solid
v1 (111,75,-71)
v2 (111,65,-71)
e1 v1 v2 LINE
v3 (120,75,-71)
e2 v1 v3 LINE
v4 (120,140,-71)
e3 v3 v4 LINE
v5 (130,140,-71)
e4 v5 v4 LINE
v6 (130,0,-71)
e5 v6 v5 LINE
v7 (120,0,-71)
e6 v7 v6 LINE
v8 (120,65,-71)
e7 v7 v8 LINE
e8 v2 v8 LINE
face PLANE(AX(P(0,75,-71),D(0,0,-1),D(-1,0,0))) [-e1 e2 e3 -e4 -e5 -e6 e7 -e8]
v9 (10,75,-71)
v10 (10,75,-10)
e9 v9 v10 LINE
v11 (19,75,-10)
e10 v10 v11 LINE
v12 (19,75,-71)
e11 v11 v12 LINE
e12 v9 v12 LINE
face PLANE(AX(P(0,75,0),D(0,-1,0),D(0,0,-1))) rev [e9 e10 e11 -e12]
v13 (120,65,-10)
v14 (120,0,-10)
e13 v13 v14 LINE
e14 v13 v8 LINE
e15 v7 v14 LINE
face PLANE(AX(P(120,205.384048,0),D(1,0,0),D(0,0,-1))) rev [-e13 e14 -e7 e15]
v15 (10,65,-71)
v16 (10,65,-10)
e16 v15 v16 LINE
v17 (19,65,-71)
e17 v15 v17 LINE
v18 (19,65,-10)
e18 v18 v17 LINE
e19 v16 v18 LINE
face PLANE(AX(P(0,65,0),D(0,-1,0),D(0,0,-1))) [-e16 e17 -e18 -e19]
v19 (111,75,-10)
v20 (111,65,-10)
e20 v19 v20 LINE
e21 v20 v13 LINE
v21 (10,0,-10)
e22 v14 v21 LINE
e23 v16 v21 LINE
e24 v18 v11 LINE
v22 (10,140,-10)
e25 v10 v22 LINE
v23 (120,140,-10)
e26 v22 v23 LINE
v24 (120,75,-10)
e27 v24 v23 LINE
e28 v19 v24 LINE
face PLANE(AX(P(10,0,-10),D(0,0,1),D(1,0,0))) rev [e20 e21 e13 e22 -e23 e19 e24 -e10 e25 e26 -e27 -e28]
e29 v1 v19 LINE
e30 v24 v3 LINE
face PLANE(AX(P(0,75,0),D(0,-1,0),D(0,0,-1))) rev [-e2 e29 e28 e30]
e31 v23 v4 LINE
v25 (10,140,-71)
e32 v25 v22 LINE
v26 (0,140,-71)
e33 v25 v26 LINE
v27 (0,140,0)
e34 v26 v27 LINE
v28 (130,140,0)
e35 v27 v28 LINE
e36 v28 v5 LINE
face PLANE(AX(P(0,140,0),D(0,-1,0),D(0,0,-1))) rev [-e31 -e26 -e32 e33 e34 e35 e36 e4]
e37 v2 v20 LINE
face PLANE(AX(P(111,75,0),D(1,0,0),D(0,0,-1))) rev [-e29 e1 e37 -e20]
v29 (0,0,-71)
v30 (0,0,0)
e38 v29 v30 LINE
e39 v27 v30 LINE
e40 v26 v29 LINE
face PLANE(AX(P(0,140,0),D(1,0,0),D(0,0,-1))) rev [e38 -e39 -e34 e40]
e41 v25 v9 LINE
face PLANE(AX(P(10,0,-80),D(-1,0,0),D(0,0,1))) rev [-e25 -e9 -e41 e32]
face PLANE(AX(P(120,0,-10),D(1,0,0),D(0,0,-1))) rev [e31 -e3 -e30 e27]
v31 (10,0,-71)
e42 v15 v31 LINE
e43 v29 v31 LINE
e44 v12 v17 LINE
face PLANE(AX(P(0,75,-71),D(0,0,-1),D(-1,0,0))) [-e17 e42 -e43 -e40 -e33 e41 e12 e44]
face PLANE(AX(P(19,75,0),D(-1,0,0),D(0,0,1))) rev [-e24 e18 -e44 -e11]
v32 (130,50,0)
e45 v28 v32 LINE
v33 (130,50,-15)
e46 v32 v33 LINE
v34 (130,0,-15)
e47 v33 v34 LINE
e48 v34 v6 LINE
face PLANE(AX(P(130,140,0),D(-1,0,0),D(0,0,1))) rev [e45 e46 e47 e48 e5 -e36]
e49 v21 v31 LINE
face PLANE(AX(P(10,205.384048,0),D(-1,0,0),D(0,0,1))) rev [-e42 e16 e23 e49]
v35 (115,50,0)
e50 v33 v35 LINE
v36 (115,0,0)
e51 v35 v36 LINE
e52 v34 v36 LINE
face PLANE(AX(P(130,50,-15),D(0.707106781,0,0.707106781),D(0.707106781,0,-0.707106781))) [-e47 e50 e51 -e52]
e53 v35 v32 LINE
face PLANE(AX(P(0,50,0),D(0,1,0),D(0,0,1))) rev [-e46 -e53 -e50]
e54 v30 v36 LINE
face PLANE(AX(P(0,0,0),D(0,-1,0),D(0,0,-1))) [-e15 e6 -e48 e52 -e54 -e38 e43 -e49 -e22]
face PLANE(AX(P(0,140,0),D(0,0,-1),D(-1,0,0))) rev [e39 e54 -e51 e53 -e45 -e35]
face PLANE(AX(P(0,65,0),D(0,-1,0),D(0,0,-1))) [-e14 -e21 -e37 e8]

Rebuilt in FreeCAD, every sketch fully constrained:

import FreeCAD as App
import Part
import Sketcher

V = App.Vector

doc = App.newDocument("Part")
body = doc.addObject("PartDesign::Body", "Body")

# Sketch on XZ plane
sketch1 = doc.addObject("Sketcher::SketchObject", "Sketch")
body.addObject(sketch1)
sketch1.AttachmentSupport = (doc.XZ_Plane, [""])
sketch1.MapMode = "FlatFace"
sketch1.addGeometry(Part.LineSegment(V(0, -90, 0), V(0, 0, 0)), False)
sketch1.addGeometry(Part.LineSegment(V(0, 0, 0), V(130, 0, 0)), False)
sketch1.addGeometry(Part.LineSegment(V(130, 0, 0), V(130, -90, 0)), False)
sketch1.addGeometry(Part.LineSegment(V(130, -90, 0), V(0, -90, 0)), False)
sketch1.addConstraint(Sketcher.Constraint("Coincident", 0, 2, 1, 1))
sketch1.addConstraint(Sketcher.Constraint("Coincident", 1, 2, 2, 1))
sketch1.addConstraint(Sketcher.Constraint("Coincident", 2, 2, 3, 1))
sketch1.addConstraint(Sketcher.Constraint("Coincident", 3, 2, 0, 1))
sketch1.addConstraint(Sketcher.Constraint("Vertical", 0))
sketch1.addConstraint(Sketcher.Constraint("Horizontal", 1))
sketch1.addConstraint(Sketcher.Constraint("Vertical", 2))
sketch1.addConstraint(Sketcher.Constraint("Horizontal", 3))
sketch1.addConstraint(Sketcher.Constraint("Coincident", 0, 2, -1, 1))
sketch1.addConstraint(Sketcher.Constraint("DistanceX", 1, 1, 1, 2, 130.0))
sketch1.addConstraint(Sketcher.Constraint("DistanceY", 0, 1, 0, 2, 90.0))
pad1 = doc.addObject("PartDesign::Pad", "Pad")
body.addObject(pad1)
pad1.Profile = sketch1
pad1.Length = 140
pad1.Reversed = True

# Sketch on XZ plane
sketch2 = doc.addObject("Sketcher::SketchObject", "Sketch001")
body.addObject(sketch2)
sketch2.AttachmentSupport = (doc.XZ_Plane, [""])
sketch2.MapMode = "FlatFace"
sketch2.AttachmentOffset = App.Placement(V(0, 0, -140), App.Rotation())
sketch2.addGeometry(Part.LineSegment(V(10, -80, 0), V(10, -10, 0)), False)
sketch2.addGeometry(Part.LineSegment(V(10, -10, 0), V(120, -10, 0)), False)
sketch2.addGeometry(Part.LineSegment(V(120, -10, 0), V(120, -80, 0)), False)
sketch2.addGeometry(Part.LineSegment(V(120, -80, 0), V(10, -80, 0)), False)
sketch2.addConstraint(Sketcher.Constraint("Coincident", 0, 2, 1, 1))
sketch2.addConstraint(Sketcher.Constraint("Coincident", 1, 2, 2, 1))
sketch2.addConstraint(Sketcher.Constraint("Coincident", 2, 2, 3, 1))
sketch2.addConstraint(Sketcher.Constraint("Coincident", 3, 2, 0, 1))
sketch2.addConstraint(Sketcher.Constraint("Vertical", 0))
sketch2.addConstraint(Sketcher.Constraint("Horizontal", 1))
sketch2.addConstraint(Sketcher.Constraint("Vertical", 2))
sketch2.addConstraint(Sketcher.Constraint("Horizontal", 3))
sketch2.addConstraint(Sketcher.Constraint("DistanceX", 1, 1, 1, 2, 110.0))
sketch2.addConstraint(Sketcher.Constraint("DistanceY", 0, 1, 0, 2, 70.0))
sketch2.addConstraint(Sketcher.Constraint("DistanceX", -1, 1, 0, 2, 10.0))
sketch2.addConstraint(Sketcher.Constraint("DistanceY", 0, 2, -1, 1, 10.0))
pocket1 = doc.addObject("PartDesign::Pocket", "Pocket")
body.addObject(pocket1)
pocket1.Profile = sketch2
pocket1.Type = "ThroughAll"
pocket1.Reversed = True

# Sketch on XZ plane
sketch3 = doc.addObject("Sketcher::SketchObject", "Sketch002")
body.addObject(sketch3)
sketch3.AttachmentSupport = (doc.XZ_Plane, [""])
sketch3.MapMode = "FlatFace"
sketch3.addGeometry(Part.LineSegment(V(10, -10, 0), V(10, -80, 0)), False)
sketch3.addGeometry(Part.LineSegment(V(10, -80, 0), V(120, -80, 0)), False)
sketch3.addGeometry(Part.LineSegment(V(120, -80, 0), V(120, -10, 0)), False)
sketch3.addGeometry(Part.LineSegment(V(120, -10, 0), V(10, -10, 0)), False)
sketch3.addGeometry(Part.LineSegment(V(111, -71, 0), V(19, -71, 0)), False)
sketch3.addGeometry(Part.LineSegment(V(19, -71, 0), V(19, -19, 0)), False)
sketch3.addGeometry(Part.LineSegment(V(19, -19, 0), V(111, -19, 0)), False)
sketch3.addGeometry(Part.LineSegment(V(111, -19, 0), V(111, -71, 0)), False)
sketch3.addConstraint(Sketcher.Constraint("Coincident", 0, 2, 1, 1))
sketch3.addConstraint(Sketcher.Constraint("Coincident", 1, 2, 2, 1))
sketch3.addConstraint(Sketcher.Constraint("Coincident", 2, 2, 3, 1))
sketch3.addConstraint(Sketcher.Constraint("Coincident", 3, 2, 0, 1))
sketch3.addConstraint(Sketcher.Constraint("Coincident", 4, 2, 5, 1))
sketch3.addConstraint(Sketcher.Constraint("Coincident", 5, 2, 6, 1))
sketch3.addConstraint(Sketcher.Constraint("Coincident", 6, 2, 7, 1))
sketch3.addConstraint(Sketcher.Constraint("Coincident", 7, 2, 4, 1))
sketch3.addConstraint(Sketcher.Constraint("Vertical", 0))
sketch3.addConstraint(Sketcher.Constraint("Horizontal", 1))
sketch3.addConstraint(Sketcher.Constraint("Vertical", 2))
sketch3.addConstraint(Sketcher.Constraint("Horizontal", 3))
sketch3.addConstraint(Sketcher.Constraint("Horizontal", 4))
sketch3.addConstraint(Sketcher.Constraint("Vertical", 5))
sketch3.addConstraint(Sketcher.Constraint("Horizontal", 6))
sketch3.addConstraint(Sketcher.Constraint("Vertical", 7))
sketch3.addConstraint(Sketcher.Constraint("DistanceX", 1, 1, 1, 2, 110.0))
sketch3.addConstraint(Sketcher.Constraint("DistanceX", 4, 2, 4, 1, 92.0))
sketch3.addConstraint(Sketcher.Constraint("DistanceY", 0, 2, 0, 1, 70.0))
sketch3.addConstraint(Sketcher.Constraint("DistanceY", 5, 1, 5, 2, 52.0))
sketch3.addConstraint(Sketcher.Constraint("DistanceX", -1, 1, 0, 2, 10.0))
sketch3.addConstraint(Sketcher.Constraint("DistanceY", 0, 2, -1, 1, 80.0))
sketch3.addConstraint(Sketcher.Constraint("DistanceX", -1, 1, 4, 2, 19.0))
sketch3.addConstraint(Sketcher.Constraint("DistanceY", 4, 2, -1, 1, 71.0))
pad2 = doc.addObject("PartDesign::Pad", "Pad001")
body.addObject(pad2)
pad2.Profile = sketch3
pad2.Length = 75
pad2.Reversed = True

# Sketch on XZ plane
sketch4 = doc.addObject("Sketcher::SketchObject", "Sketch003")
body.addObject(sketch4)
sketch4.AttachmentSupport = (doc.XZ_Plane, [""])
sketch4.MapMode = "FlatFace"
sketch4.addGeometry(Part.LineSegment(V(10, -10, 0), V(10, -80, 0)), False)
sketch4.addGeometry(Part.LineSegment(V(10, -80, 0), V(120, -80, 0)), False)
sketch4.addGeometry(Part.LineSegment(V(120, -80, 0), V(120, -10, 0)), False)
sketch4.addGeometry(Part.LineSegment(V(120, -10, 0), V(10, -10, 0)), False)
sketch4.addGeometry(Part.LineSegment(V(111, -71, 0), V(19, -71, 0)), False)
sketch4.addGeometry(Part.LineSegment(V(19, -71, 0), V(19, -19, 0)), False)
sketch4.addGeometry(Part.LineSegment(V(19, -19, 0), V(111, -19, 0)), False)
sketch4.addGeometry(Part.LineSegment(V(111, -19, 0), V(111, -71, 0)), False)
sketch4.addConstraint(Sketcher.Constraint("Coincident", 0, 2, 1, 1))
sketch4.addConstraint(Sketcher.Constraint("Coincident", 1, 2, 2, 1))
sketch4.addConstraint(Sketcher.Constraint("Coincident", 2, 2, 3, 1))
sketch4.addConstraint(Sketcher.Constraint("Coincident", 3, 2, 0, 1))
sketch4.addConstraint(Sketcher.Constraint("Coincident", 4, 2, 5, 1))
sketch4.addConstraint(Sketcher.Constraint("Coincident", 5, 2, 6, 1))
sketch4.addConstraint(Sketcher.Constraint("Coincident", 6, 2, 7, 1))
sketch4.addConstraint(Sketcher.Constraint("Coincident", 7, 2, 4, 1))
sketch4.addConstraint(Sketcher.Constraint("Vertical", 0))
sketch4.addConstraint(Sketcher.Constraint("Horizontal", 1))
sketch4.addConstraint(Sketcher.Constraint("Vertical", 2))
sketch4.addConstraint(Sketcher.Constraint("Horizontal", 3))
sketch4.addConstraint(Sketcher.Constraint("Horizontal", 4))
sketch4.addConstraint(Sketcher.Constraint("Vertical", 5))
sketch4.addConstraint(Sketcher.Constraint("Horizontal", 6))
sketch4.addConstraint(Sketcher.Constraint("Vertical", 7))
sketch4.addConstraint(Sketcher.Constraint("DistanceX", 1, 1, 1, 2, 110.0))
sketch4.addConstraint(Sketcher.Constraint("DistanceX", 4, 2, 4, 1, 92.0))
sketch4.addConstraint(Sketcher.Constraint("DistanceY", 0, 2, 0, 1, 70.0))
sketch4.addConstraint(Sketcher.Constraint("DistanceY", 5, 1, 5, 2, 52.0))
sketch4.addConstraint(Sketcher.Constraint("DistanceX", -1, 1, 0, 2, 10.0))
sketch4.addConstraint(Sketcher.Constraint("DistanceY", 0, 2, -1, 1, 80.0))
sketch4.addConstraint(Sketcher.Constraint("DistanceX", -1, 1, 4, 2, 19.0))
sketch4.addConstraint(Sketcher.Constraint("DistanceY", 4, 2, -1, 1, 71.0))
pocket2 = doc.addObject("PartDesign::Pocket", "Pocket001")
body.addObject(pocket2)
pocket2.Profile = sketch4
pocket2.Length = 65

# Sketch on XY plane
sketch5 = doc.addObject("Sketcher::SketchObject", "Sketch004")
body.addObject(sketch5)
sketch5.AttachmentSupport = (doc.XY_Plane, [""])
sketch5.MapMode = "FlatFace"
sketch5.AttachmentOffset = App.Placement(V(0, 0, -90), App.Rotation())
sketch5.addGeometry(Part.LineSegment(V(130, 140, 0), V(130, 0, 0)), False)
sketch5.addGeometry(Part.LineSegment(V(130, 0, 0), V(0, 0, 0)), False)
sketch5.addGeometry(Part.LineSegment(V(0, 0, 0), V(0, 140, 0)), False)
sketch5.addGeometry(Part.LineSegment(V(0, 140, 0), V(130, 140, 0)), False)
sketch5.addConstraint(Sketcher.Constraint("Coincident", 0, 2, 1, 1))
sketch5.addConstraint(Sketcher.Constraint("Coincident", 1, 2, 2, 1))
sketch5.addConstraint(Sketcher.Constraint("Coincident", 2, 2, 3, 1))
sketch5.addConstraint(Sketcher.Constraint("Coincident", 3, 2, 0, 1))
sketch5.addConstraint(Sketcher.Constraint("Vertical", 0))
sketch5.addConstraint(Sketcher.Constraint("Horizontal", 1))
sketch5.addConstraint(Sketcher.Constraint("Vertical", 2))
sketch5.addConstraint(Sketcher.Constraint("Horizontal", 3))
sketch5.addConstraint(Sketcher.Constraint("Coincident", 1, 2, -1, 1))
sketch5.addConstraint(Sketcher.Constraint("DistanceX", 1, 2, 1, 1, 130.0))
sketch5.addConstraint(Sketcher.Constraint("DistanceY", 0, 2, 0, 1, 140.0))
pocket3 = doc.addObject("PartDesign::Pocket", "Pocket002")
body.addObject(pocket3)
pocket3.Profile = sketch5
pocket3.Length = 19
pocket3.Reversed = True

# Sketch on XY plane
sketch6 = doc.addObject("Sketcher::SketchObject", "Sketch005")
body.addObject(sketch6)
sketch6.AttachmentSupport = (doc.XY_Plane, [""])
sketch6.MapMode = "FlatFace"
sketch6.AttachmentOffset = App.Placement(V(0, 0, -19), App.Rotation())
sketch6.addGeometry(Part.LineSegment(V(111, 75, 0), V(111, 65, 0)), False)
sketch6.addGeometry(Part.LineSegment(V(111, 65, 0), V(19, 65, 0)), False)
sketch6.addGeometry(Part.LineSegment(V(19, 65, 0), V(19, 75, 0)), False)
sketch6.addGeometry(Part.LineSegment(V(19, 75, 0), V(111, 75, 0)), False)
sketch6.addConstraint(Sketcher.Constraint("Coincident", 0, 2, 1, 1))
sketch6.addConstraint(Sketcher.Constraint("Coincident", 1, 2, 2, 1))
sketch6.addConstraint(Sketcher.Constraint("Coincident", 2, 2, 3, 1))
sketch6.addConstraint(Sketcher.Constraint("Coincident", 3, 2, 0, 1))
sketch6.addConstraint(Sketcher.Constraint("Vertical", 0))
sketch6.addConstraint(Sketcher.Constraint("Horizontal", 1))
sketch6.addConstraint(Sketcher.Constraint("Vertical", 2))
sketch6.addConstraint(Sketcher.Constraint("Horizontal", 3))
sketch6.addConstraint(Sketcher.Constraint("DistanceX", 1, 2, 1, 1, 92.0))
sketch6.addConstraint(Sketcher.Constraint("DistanceY", 0, 2, 0, 1, 10.0))
sketch6.addConstraint(Sketcher.Constraint("DistanceX", -1, 1, 0, 2, 111.0))
sketch6.addConstraint(Sketcher.Constraint("DistanceY", -1, 1, 0, 2, 65.0))
pocket4 = doc.addObject("PartDesign::Pocket", "Pocket003")
body.addObject(pocket4)
pocket4.Profile = sketch6
pocket4.Length = 9
pocket4.Reversed = True

# Sketch on XZ plane
sketch7 = doc.addObject("Sketcher::SketchObject", "Sketch006")
body.addObject(sketch7)
sketch7.AttachmentSupport = (doc.XZ_Plane, [""])
sketch7.MapMode = "FlatFace"
sketch7.addGeometry(Part.LineSegment(V(130, 0, 0), V(130, -15, 0)), False)
sketch7.addGeometry(Part.LineSegment(V(130, -15, 0), V(115, 0, 0)), False)
sketch7.addGeometry(Part.LineSegment(V(115, 0, 0), V(130, 0, 0)), False)
sketch7.addConstraint(Sketcher.Constraint("Coincident", 0, 2, 1, 1))
sketch7.addConstraint(Sketcher.Constraint("Coincident", 1, 2, 2, 1))
sketch7.addConstraint(Sketcher.Constraint("Coincident", 2, 2, 0, 1))
sketch7.addConstraint(Sketcher.Constraint("Vertical", 0))
sketch7.addConstraint(Sketcher.Constraint("Horizontal", 2))
sketch7.addConstraint(Sketcher.Constraint("PointOnObject", 1, 2, -1))
sketch7.addConstraint(Sketcher.Constraint("Equal", 2, 0))
sketch7.addConstraint(Sketcher.Constraint("DistanceX", 2, 1, 2, 2, 15.0))
sketch7.addConstraint(Sketcher.Constraint("DistanceX", -1, 1, 0, 2, 130.0))
pocket5 = doc.addObject("PartDesign::Pocket", "Pocket004")
body.addObject(pocket5)
pocket5.Profile = sketch7
pocket5.Length = 50

doc.recompute()
